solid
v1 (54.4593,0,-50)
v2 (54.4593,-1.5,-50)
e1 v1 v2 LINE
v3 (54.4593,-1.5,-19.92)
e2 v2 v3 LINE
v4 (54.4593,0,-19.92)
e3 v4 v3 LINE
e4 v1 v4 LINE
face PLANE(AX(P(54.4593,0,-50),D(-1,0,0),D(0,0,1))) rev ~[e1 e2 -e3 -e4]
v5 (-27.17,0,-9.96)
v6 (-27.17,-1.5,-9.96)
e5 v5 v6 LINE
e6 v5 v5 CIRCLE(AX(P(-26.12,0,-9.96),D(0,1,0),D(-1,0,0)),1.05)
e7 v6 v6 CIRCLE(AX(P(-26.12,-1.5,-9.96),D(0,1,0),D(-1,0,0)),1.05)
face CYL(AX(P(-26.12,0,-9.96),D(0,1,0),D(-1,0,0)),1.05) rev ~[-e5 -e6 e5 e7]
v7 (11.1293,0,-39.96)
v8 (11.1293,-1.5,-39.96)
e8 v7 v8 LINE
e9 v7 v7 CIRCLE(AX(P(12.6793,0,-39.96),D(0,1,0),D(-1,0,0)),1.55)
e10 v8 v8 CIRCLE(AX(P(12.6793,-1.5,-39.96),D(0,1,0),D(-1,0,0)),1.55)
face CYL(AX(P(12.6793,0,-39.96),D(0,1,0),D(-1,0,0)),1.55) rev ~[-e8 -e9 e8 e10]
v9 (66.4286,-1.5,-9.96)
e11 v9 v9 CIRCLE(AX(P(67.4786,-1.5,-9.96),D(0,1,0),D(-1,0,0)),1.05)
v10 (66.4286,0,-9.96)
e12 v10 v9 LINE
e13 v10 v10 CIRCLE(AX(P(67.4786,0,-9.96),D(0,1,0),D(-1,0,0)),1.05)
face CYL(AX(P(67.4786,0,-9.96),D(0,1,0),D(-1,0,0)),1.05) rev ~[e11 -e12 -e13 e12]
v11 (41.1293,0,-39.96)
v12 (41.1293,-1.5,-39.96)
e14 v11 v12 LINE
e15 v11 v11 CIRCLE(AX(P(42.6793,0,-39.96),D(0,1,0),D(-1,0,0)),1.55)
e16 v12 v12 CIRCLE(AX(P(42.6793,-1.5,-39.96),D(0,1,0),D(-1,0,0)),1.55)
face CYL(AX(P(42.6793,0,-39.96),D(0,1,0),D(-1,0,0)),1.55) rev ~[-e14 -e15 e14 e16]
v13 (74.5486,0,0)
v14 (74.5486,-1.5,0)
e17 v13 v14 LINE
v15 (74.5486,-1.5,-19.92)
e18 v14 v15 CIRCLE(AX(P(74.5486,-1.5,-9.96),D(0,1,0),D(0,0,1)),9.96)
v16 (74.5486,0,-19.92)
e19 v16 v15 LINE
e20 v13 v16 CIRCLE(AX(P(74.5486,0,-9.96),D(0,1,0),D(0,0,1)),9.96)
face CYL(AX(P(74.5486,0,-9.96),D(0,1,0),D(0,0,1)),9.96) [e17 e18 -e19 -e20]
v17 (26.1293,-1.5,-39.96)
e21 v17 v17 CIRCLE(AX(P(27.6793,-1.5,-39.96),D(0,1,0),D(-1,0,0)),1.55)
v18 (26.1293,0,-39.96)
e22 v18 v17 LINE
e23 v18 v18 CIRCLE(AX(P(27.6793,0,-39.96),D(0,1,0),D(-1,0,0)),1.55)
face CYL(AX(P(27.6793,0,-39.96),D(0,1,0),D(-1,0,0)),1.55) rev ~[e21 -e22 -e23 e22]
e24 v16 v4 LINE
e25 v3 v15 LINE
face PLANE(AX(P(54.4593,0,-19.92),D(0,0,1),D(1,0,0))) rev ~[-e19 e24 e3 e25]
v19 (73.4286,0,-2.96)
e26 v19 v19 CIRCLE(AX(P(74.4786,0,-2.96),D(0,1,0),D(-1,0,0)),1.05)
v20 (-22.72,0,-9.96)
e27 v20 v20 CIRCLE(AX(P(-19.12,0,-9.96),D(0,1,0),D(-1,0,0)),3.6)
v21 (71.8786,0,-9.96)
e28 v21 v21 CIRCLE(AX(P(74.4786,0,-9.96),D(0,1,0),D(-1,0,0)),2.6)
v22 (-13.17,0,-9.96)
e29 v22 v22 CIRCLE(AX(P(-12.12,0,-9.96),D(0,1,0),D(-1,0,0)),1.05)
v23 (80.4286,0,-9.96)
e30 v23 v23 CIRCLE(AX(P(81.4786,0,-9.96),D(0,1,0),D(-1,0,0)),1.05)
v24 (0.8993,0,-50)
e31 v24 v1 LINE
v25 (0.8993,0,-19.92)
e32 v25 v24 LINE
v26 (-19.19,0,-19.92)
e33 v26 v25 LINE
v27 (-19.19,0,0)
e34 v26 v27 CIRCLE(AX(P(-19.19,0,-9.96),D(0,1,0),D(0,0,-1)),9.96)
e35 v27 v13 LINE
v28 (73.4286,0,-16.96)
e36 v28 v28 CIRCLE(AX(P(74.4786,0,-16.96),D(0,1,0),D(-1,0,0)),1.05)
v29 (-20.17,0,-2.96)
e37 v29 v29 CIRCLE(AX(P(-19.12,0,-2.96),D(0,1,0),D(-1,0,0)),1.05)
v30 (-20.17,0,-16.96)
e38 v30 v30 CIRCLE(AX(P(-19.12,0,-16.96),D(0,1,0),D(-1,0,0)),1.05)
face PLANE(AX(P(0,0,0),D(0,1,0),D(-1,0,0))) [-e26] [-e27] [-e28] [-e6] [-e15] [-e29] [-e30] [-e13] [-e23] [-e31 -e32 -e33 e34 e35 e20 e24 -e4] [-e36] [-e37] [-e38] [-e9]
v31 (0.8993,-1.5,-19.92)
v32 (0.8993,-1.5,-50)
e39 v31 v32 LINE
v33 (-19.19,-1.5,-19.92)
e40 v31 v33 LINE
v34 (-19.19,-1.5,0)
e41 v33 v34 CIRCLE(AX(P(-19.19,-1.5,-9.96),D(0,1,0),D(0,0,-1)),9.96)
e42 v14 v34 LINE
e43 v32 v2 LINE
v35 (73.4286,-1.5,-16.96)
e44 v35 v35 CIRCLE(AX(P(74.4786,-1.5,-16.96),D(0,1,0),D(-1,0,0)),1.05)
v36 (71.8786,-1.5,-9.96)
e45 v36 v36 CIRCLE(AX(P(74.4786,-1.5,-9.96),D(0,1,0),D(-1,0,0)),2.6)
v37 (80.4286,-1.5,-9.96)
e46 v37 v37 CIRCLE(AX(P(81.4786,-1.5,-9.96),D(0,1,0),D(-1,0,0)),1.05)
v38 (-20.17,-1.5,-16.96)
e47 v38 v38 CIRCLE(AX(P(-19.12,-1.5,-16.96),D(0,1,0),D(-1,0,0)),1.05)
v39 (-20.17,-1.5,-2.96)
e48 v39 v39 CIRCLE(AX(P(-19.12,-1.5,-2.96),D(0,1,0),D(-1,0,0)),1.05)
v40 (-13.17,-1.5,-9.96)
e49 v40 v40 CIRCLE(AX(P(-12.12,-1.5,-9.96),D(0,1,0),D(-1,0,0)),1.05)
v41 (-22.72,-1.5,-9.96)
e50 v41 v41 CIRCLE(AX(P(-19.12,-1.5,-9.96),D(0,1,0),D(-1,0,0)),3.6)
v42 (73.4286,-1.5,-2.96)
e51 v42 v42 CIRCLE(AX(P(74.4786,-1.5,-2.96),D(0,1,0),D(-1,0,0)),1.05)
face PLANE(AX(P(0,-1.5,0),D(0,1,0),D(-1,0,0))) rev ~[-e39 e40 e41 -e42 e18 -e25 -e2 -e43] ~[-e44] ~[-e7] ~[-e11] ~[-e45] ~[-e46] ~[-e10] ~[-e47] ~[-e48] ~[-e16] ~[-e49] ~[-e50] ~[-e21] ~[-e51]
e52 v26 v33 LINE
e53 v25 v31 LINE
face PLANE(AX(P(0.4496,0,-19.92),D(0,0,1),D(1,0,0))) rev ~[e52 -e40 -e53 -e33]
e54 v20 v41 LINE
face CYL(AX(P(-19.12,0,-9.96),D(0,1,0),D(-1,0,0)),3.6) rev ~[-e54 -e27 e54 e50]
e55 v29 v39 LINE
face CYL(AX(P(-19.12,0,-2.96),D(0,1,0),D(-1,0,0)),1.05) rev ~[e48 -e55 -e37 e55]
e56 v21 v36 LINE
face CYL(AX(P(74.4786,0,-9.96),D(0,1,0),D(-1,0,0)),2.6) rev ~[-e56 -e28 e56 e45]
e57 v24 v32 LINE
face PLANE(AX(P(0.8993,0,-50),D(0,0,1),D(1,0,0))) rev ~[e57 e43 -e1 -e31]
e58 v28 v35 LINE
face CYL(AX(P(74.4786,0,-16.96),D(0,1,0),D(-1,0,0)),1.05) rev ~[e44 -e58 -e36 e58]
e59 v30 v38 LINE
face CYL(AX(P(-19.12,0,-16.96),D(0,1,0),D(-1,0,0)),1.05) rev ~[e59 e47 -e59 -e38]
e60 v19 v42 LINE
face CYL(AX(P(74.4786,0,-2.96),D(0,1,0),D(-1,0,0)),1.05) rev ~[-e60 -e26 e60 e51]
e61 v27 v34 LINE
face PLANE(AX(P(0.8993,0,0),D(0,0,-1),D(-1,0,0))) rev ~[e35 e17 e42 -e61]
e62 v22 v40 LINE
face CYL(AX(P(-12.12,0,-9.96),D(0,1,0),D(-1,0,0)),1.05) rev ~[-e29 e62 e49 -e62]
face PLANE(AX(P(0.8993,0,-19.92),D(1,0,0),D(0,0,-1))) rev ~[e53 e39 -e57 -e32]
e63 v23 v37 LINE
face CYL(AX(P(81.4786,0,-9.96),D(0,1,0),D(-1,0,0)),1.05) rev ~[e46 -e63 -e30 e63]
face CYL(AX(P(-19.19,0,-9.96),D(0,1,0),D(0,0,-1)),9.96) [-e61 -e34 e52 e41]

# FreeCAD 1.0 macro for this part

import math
import FreeCAD as App
import Part
import Sketcher
from FreeCAD import Vector

doc = App.newDocument("Part")
body = doc.addObject("PartDesign::Body", "Body")

sketch1 = doc.addObject("Sketcher::SketchObject", "Sketch")
body.addObject(sketch1)
sketch1.AttachmentSupport = (doc.XZ_Plane, [""])
sketch1.MapMode = "FlatFace"
sketch1.addGeometry([
    Part.LineSegment(Vector(0.9, -19.9, 0), Vector(-19.2, -19.9, 0)),
    Part.ArcOfCircle(Part.Circle(Vector(-19.2, -10, 0), Vector(0, 0, 1), 10), math.radians(90), math.radians(270)),
    Part.LineSegment(Vector(-19.2, 0, 0), Vector(74.5, 0, 0)),
    Part.ArcOfCircle(Part.Circle(Vector(74.5, -10, 0), Vector(0, 0, 1), 10), math.radians(-90), math.radians(90)),
    Part.LineSegment(Vector(74.5, -19.9, 0), Vector(54.5, -19.9, 0)),
    Part.LineSegment(Vector(54.5, -19.9, 0), Vector(54.5, -50, 0)),
    Part.LineSegment(Vector(54.5, -50, 0), Vector(0.9, -50, 0)),
    Part.LineSegment(Vector(0.9, -50, 0), Vector(0.9, -19.9, 0)),
    Part.Circle(Vector(12.7, -40, 0), Vector(0, 0, 1), 1.6),
    Part.Circle(Vector(42.7, -40, 0), Vector(0, 0, 1), 1.6),
    Part.Circle(Vector(27.7, -40, 0), Vector(0, 0, 1), 1.6),
    Part.Circle(Vector(-19.1, -3, 0), Vector(0, 0, 1), 1.1),
    Part.Circle(Vector(-19.1, -17, 0), Vector(0, 0, 1), 1.1),
    Part.Circle(Vector(-12.1, -10, 0), Vector(0, 0, 1), 1.1),
    Part.Circle(Vector(-19.1, -10, 0), Vector(0, 0, 1), 3.6),
    Part.Circle(Vector(-26.1, -10, 0), Vector(0, 0, 1), 1.1),
    Part.Circle(Vector(74.5, -3, 0), Vector(0, 0, 1), 1.1),
    Part.Circle(Vector(74.5, -17, 0), Vector(0, 0, 1), 1.1),
    Part.Circle(Vector(81.5, -10, 0), Vector(0, 0, 1), 1.1),
    Part.Circle(Vector(74.5, -10, 0), Vector(0, 0, 1), 2.6),
    Part.Circle(Vector(67.5, -10, 0), Vector(0, 0, 1), 1.1),
], False)
sketch1.addConstraint([
    Sketcher.Constraint("Tangent", 0, 2, 1, 2),
    Sketcher.Constraint("Tangent", 1, 1, 2, 1),
    Sketcher.Constraint("Tangent", 2, 2, 3, 2),
    Sketcher.Constraint("Tangent", 3, 1, 4, 1),
    Sketcher.Constraint("Coincident", 4, 2, 5, 1),
    Sketcher.Constraint("Coincident", 5, 2, 6, 1),
    Sketcher.Constraint("Coincident", 6, 2, 7, 1),
    Sketcher.Constraint("Coincident", 7, 2, 0, 1),
    Sketcher.Constraint("Horizontal", 0),
    Sketcher.Constraint("Horizontal", 2),
    Sketcher.Constraint("Horizontal", 4),
    Sketcher.Constraint("Vertical", 5),
    Sketcher.Constraint("Horizontal", 6),
    Sketcher.Constraint("Vertical", 7),
    Sketcher.Constraint("Equal", 1, 3),
    Sketcher.Constraint("Equal", 8, 9),
    Sketcher.Constraint("Equal", 9, 10),
    Sketcher.Constraint("Equal", 11, 12),
    Sketcher.Constraint("Equal", 12, 13),
    Sketcher.Constraint("Equal", 13, 15),
    Sketcher.Constraint("Equal", 15, 16),
    Sketcher.Constraint("Equal", 16, 17),
    Sketcher.Constraint("Equal", 17, 18),
    Sketcher.Constraint("Equal", 18, 20),
    Sketcher.Constraint("PointOnObject", 1, 1, -1),
    Sketcher.Constraint("Horizontal", 8, 3, 9, 3),
    Sketcher.Constraint("Horizontal", 9, 3, 10, 3),
    Sketcher.Constraint("Horizontal", 3, 3, 13, 3),
    Sketcher.Constraint("Horizontal", 13, 3, 14, 3),
    Sketcher.Constraint("Horizontal", 14, 3, 15, 3),
    Sketcher.Constraint("Horizontal", 11, 3, 16, 3),
    Sketcher.Constraint("Horizontal", 12, 3, 17, 3),
    Sketcher.Constraint("Horizontal", 15, 3, 18, 3),
    Sketcher.Constraint("Horizontal", 18, 3, 19, 3),
    Sketcher.Constraint("Horizontal", 19, 3, 20, 3),
    Sketcher.Constraint("Vertical", 11, 3, 12, 3),
    Sketcher.Constraint("Vertical", 12, 3, 14, 3),
    Sketcher.Constraint("Vertical", 16, 3, 17, 3),
    Sketcher.Constraint("Vertical", 17, 3, 19, 3),
    Sketcher.Constraint("Equal", 0, 4),
    Sketcher.Constraint("Diameter", 8, 3.1),
    Sketcher.Constraint("Diameter", 11, 2.1),
    Sketcher.Constraint("Diameter", 14, 7.2),
    Sketcher.Constraint("Diameter", 19, 5.2),
    Sketcher.Constraint("Radius", 1, 9.96),
    Sketcher.Constraint("DistanceY", 5, 2, -1, 1, 50.0),
    Sketcher.Constraint("DistanceY", 8, 3, 1, 3, 30.0),
    Sketcher.Constraint("DistanceX", 8, 3, 9, 3, 30.0),
    Sketcher.Constraint("DistanceX", 10, 3, 9, 3, 15.0),
    Sketcher.Constraint("DistanceY", 1, 3, 11, 3, 7.0),
    Sketcher.Constraint("DistanceY", 12, 3, 1, 3, 7.0),
    Sketcher.Constraint("DistanceX", 11, 3, 13, 3, 7.0),
    Sketcher.Constraint("DistanceX", 15, 3, 14, 3, 7.0),
    Sketcher.Constraint("DistanceX", 16, 3, 18, 3, 7.0),
    Sketcher.Constraint("DistanceX", 20, 3, 19, 3, 7.0),
    Sketcher.Constraint("DistanceX", 6, 2, 6, 1, 53.56),
    Sketcher.Constraint("DistanceX", 1, 3, -1, 1, 19.19),
    Sketcher.Constraint("DistanceX", 11, 3, -1, 1, 19.12),
    Sketcher.Constraint("DistanceX", 16, 3, 3, 3, 0.07),
    Sketcher.Constraint("DistanceX", 9, 3, 5, 2, 11.78),
    Sketcher.Constraint("DistanceX", 0, 2, 0, 1, 20.0893),
])
pad1 = doc.addObject("PartDesign::Pad", "Pad")
body.addObject(pad1)
pad1.Profile = sketch1
pad1.Length = 1.5

doc.recompute()
